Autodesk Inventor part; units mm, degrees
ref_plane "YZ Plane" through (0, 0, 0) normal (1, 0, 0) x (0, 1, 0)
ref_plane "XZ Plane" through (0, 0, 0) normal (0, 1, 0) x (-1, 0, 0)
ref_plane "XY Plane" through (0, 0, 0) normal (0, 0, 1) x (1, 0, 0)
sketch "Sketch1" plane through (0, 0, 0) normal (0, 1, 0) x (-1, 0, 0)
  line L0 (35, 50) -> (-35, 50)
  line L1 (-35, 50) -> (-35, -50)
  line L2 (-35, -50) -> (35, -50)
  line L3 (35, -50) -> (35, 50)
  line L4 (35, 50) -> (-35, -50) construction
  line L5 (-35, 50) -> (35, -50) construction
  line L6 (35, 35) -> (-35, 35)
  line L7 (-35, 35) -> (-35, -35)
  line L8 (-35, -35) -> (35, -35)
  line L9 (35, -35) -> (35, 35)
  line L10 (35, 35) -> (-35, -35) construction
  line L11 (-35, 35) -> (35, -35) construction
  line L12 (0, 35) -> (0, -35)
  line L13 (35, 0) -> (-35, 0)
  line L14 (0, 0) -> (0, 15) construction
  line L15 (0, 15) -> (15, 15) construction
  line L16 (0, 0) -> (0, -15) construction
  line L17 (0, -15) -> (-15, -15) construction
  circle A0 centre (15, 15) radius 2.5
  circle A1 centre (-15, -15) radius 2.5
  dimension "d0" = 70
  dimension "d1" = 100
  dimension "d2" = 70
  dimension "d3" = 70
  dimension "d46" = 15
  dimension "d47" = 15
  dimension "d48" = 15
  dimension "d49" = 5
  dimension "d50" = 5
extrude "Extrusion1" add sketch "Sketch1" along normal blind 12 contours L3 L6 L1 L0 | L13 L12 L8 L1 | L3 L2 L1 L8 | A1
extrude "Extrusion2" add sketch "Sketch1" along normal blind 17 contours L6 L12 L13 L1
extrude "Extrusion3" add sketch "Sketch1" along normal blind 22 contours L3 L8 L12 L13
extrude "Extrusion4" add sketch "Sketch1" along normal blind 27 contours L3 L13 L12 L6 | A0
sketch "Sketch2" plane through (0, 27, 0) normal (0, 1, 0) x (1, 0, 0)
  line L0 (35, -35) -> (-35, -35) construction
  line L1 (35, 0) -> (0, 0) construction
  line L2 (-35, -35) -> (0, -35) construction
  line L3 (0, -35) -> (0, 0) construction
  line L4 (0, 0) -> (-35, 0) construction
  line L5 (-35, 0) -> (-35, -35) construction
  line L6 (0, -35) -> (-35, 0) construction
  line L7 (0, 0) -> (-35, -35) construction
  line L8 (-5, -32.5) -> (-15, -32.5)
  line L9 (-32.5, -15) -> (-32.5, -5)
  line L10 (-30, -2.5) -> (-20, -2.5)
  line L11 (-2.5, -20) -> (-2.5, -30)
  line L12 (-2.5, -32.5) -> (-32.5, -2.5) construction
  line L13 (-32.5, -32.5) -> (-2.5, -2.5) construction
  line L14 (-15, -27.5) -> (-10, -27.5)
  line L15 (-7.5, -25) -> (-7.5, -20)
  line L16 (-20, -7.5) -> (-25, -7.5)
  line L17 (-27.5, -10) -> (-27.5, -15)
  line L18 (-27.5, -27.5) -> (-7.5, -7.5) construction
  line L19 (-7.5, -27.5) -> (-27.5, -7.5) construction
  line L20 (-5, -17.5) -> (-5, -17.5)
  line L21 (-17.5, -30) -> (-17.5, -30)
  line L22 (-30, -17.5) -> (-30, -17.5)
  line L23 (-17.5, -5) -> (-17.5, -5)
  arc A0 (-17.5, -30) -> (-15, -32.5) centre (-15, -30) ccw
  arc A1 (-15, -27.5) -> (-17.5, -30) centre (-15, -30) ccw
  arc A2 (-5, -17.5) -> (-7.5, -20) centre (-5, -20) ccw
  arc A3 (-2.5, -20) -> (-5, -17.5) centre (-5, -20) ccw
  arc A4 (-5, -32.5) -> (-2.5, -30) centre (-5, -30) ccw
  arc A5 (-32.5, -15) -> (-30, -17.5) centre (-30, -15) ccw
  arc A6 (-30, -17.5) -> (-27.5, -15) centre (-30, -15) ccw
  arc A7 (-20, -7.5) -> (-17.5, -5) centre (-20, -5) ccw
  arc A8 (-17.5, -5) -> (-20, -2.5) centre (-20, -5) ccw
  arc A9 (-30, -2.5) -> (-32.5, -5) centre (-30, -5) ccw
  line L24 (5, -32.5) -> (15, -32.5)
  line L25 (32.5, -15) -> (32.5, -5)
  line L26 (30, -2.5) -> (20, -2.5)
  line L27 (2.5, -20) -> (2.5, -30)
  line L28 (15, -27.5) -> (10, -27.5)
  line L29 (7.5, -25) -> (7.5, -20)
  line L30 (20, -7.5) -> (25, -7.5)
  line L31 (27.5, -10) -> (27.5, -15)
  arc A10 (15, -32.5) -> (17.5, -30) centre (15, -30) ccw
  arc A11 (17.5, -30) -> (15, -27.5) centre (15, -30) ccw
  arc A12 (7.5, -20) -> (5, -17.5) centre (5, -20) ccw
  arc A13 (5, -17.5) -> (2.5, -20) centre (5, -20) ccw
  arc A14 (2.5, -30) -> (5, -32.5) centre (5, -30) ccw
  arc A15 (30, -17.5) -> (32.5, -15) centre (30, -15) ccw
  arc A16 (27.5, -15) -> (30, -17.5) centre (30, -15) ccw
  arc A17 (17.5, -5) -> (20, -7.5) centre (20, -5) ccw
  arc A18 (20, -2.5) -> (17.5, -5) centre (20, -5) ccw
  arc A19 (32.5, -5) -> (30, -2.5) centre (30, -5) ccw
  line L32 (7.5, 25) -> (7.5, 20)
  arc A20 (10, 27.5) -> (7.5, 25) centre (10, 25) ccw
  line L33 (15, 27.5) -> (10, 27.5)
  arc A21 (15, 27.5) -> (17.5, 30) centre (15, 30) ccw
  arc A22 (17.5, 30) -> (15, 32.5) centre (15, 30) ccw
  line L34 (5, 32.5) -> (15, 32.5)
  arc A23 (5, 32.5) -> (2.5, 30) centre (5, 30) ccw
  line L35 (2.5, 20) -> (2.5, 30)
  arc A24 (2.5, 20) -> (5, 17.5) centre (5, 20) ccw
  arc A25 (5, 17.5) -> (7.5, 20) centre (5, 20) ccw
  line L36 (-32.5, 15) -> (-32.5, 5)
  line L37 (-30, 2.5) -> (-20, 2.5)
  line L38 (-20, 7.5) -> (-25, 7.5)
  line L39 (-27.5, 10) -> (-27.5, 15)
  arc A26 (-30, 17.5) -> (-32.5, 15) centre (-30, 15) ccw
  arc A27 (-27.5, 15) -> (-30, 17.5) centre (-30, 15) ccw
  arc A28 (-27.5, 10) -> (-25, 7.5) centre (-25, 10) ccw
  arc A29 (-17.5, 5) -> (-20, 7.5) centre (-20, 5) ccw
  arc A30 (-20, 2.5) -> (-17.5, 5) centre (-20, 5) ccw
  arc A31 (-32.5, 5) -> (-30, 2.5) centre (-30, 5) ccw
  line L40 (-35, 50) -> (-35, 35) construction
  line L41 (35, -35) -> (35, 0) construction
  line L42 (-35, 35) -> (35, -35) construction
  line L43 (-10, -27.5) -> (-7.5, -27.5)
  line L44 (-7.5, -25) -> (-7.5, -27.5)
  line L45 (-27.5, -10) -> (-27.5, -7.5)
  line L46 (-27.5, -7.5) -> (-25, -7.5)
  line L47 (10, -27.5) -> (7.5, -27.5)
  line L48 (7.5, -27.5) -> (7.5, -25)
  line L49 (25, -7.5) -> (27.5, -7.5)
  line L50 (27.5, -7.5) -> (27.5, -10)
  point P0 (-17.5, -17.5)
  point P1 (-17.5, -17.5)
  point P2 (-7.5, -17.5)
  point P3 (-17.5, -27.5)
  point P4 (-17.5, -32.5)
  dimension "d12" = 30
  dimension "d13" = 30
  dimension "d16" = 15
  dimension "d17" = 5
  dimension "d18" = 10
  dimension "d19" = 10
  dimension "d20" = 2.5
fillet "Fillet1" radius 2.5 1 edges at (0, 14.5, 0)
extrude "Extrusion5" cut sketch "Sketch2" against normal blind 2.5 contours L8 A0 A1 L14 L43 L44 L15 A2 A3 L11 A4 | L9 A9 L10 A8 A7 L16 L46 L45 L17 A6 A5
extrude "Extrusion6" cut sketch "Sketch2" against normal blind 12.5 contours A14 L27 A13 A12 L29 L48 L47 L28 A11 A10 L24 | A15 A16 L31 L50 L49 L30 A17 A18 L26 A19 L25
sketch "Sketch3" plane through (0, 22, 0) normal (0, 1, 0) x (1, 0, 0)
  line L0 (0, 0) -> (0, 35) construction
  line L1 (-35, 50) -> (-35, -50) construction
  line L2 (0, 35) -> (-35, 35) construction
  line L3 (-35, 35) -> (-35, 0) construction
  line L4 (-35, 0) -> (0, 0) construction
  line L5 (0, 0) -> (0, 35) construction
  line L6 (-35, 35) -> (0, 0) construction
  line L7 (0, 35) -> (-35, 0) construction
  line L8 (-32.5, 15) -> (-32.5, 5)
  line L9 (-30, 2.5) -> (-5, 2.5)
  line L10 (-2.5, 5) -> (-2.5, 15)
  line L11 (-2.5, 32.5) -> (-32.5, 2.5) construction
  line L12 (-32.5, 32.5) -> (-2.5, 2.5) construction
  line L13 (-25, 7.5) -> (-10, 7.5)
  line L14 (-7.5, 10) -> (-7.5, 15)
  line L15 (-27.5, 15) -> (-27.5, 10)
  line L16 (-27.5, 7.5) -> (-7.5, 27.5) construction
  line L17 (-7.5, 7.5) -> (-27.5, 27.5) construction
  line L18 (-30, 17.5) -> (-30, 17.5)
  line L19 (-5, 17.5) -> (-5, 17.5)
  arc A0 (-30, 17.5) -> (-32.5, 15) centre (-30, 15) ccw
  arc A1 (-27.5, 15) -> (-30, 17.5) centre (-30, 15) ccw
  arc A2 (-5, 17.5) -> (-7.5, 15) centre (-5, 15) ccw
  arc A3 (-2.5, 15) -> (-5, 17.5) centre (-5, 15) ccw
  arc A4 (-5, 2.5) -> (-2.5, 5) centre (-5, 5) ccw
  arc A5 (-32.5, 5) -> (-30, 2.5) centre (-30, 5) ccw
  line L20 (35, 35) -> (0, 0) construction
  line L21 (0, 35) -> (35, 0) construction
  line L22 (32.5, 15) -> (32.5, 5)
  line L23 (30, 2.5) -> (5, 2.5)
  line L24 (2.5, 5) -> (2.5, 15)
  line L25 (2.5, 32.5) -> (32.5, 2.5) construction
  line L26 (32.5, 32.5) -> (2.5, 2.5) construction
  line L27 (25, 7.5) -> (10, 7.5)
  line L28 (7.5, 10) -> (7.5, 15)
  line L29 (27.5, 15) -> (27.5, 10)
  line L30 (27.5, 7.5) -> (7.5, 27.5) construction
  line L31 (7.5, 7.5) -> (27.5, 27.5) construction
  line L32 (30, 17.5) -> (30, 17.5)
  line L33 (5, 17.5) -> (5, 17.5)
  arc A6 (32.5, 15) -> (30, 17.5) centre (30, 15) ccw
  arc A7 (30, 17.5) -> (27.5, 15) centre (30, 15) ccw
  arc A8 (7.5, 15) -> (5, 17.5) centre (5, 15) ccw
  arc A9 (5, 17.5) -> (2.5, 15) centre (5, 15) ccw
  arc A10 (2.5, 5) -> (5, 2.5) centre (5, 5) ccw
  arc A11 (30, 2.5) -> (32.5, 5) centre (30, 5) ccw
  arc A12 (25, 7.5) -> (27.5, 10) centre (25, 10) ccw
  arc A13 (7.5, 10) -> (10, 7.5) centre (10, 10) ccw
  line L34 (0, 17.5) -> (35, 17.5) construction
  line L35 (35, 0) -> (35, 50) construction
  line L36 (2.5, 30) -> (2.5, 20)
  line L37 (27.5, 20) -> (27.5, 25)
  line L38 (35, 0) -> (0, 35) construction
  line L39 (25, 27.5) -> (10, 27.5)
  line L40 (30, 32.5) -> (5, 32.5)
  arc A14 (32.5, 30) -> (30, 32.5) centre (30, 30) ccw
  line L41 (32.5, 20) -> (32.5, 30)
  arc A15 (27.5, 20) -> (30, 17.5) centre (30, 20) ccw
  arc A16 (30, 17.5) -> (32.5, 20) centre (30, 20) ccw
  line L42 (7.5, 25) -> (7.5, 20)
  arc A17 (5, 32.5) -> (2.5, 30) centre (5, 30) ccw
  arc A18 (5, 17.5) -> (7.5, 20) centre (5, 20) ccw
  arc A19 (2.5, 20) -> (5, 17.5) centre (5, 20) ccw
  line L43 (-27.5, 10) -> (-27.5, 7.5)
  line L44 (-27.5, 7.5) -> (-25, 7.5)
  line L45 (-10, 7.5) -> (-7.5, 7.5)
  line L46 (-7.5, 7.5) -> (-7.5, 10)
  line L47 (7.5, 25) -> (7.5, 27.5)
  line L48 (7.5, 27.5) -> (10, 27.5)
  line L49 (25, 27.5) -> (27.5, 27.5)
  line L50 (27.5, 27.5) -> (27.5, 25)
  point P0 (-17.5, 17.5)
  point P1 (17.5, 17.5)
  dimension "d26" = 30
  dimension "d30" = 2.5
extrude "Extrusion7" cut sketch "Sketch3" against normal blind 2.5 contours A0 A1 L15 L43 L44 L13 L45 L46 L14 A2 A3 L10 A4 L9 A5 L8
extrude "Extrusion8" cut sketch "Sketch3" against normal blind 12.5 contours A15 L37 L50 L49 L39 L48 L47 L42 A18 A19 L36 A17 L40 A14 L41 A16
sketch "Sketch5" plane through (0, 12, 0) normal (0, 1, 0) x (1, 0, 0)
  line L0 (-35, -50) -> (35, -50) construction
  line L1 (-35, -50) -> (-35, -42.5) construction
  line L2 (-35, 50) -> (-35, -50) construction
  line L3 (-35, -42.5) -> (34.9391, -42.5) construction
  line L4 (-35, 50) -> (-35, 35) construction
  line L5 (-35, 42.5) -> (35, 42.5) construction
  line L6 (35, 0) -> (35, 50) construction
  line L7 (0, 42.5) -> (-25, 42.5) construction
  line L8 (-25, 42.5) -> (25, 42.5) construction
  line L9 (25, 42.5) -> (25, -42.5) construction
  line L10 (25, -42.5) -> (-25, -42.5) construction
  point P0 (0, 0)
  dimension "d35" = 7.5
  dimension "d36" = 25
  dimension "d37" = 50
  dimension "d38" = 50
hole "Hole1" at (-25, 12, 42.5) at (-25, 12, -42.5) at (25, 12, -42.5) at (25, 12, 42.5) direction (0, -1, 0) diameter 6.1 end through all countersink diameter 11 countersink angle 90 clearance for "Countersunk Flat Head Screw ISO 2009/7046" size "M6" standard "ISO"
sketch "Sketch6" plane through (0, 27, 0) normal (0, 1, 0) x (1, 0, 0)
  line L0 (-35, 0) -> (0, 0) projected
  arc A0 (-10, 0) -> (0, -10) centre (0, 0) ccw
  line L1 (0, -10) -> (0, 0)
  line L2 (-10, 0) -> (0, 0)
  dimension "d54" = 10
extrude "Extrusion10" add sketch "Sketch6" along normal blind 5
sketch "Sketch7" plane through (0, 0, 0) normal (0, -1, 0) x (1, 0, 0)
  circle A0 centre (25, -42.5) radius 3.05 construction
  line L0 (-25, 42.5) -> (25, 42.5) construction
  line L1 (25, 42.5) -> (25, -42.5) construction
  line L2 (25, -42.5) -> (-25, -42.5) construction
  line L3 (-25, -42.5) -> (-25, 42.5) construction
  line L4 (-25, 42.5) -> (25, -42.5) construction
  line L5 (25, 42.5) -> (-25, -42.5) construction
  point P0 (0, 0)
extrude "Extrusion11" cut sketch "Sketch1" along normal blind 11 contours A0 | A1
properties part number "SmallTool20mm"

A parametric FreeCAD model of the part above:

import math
import FreeCAD as App
import Part
import Sketcher


def edges_at(feature, points):
    """Names of the edges that pass closest to the given points."""
    edges = feature.Shape.Edges
    near = lambda p: min(range(len(edges)), key=lambda i: edges[i].distToShape(Part.Vertex(*p))[0])
    return sorted({f"Edge{near(p) + 1}" for p in points})

doc = App.newDocument("Part")
params = doc.addObject("Spreadsheet::Sheet", "Params")
for row, (alias, value) in enumerate([
    ("sketch1_width", "70 mm"),
    ("sketch1_height", "15 mm"),
    ("pad1_length", "12 mm"),
    ("sketch2_width", "35 mm"),
    ("pad2_length", "17 mm"),
    ("sketch3_width", "35 mm"),
    ("pad3_length", "22 mm"),
    ("sketch4_width", "35 mm"),
    ("pad4_length", "27 mm"),
    ("fillet_radius", "2.5 mm"),
    ("sketch5_radius", "2.5 mm"),
    ("sketch5_width", "10 mm"),
    ("pocket1_length", "2.5 mm"),
    ("sketch6_radius", "2.5 mm"),
    ("sketch6_width", "10 mm"),
    ("pocket2_length", "12.5 mm"),
    ("sketch7_radius", "2.5 mm"),
    ("sketch7_height", "10 mm"),
    ("pocket3_length", "2.5 mm"),
    ("sketch8_radius", "2.5 mm"),
    ("sketch8_height", "10 mm"),
    ("pocket4_length", "12.5 mm"),
    ("sketch9_diameter", "6.1 mm"),
    ("hole_diameter", "6.1 mm"),
    ("hole_csink_diameter", "11 mm"),
    ("sketch10_radius", "10 mm"),
    ("pad5_length", "5 mm"),
    ("sketch11_diameter", "5 mm"),
    ("pocket5_length", "11 mm"),
], start=1):
    params.set(f"A{row}", alias)
    params.set(f"B{row}", "=" + value)
    params.setAlias(f"B{row}", alias)

body = doc.addObject("PartDesign::Body", "Body")
body.AllowCompound = True

sketch1 = doc.addObject("Sketcher::SketchObject", "Sketch")
body.addObject(sketch1)
sketch1.AttachmentSupport = (doc.XZ_Plane, [""])
sketch1.MapMode = "FlatFace"
sketch1.addGeometry([
    Part.LineSegment(App.Vector(-35, 35, 0), App.Vector(-35, 50, 0)),
    Part.LineSegment(App.Vector(-35, 50, 0), App.Vector(35, 50, 0)),
    Part.LineSegment(App.Vector(35, 50, 0), App.Vector(35, 35, 0)),
    Part.LineSegment(App.Vector(35, 35, 0), App.Vector(-35, 35, 0)),
    Part.LineSegment(App.Vector(0, 0, 0), App.Vector(35, 0, 0)),
    Part.LineSegment(App.Vector(35, 0, 0), App.Vector(35, -50, 0)),
    Part.LineSegment(App.Vector(35, -50, 0), App.Vector(-35, -50, 0)),
    Part.LineSegment(App.Vector(-35, -50, 0), App.Vector(-35, -35, 0)),
    Part.LineSegment(App.Vector(-35, -35, 0), App.Vector(0, -35, 0)),
    Part.LineSegment(App.Vector(0, -35, 0), App.Vector(0, 0, 0)),
], False)
sketch1.addConstraint([
    Sketcher.Constraint("Coincident", 0, 2, 1, 1),
    Sketcher.Constraint("Coincident", 1, 2, 2, 1),
    Sketcher.Constraint("Coincident", 2, 2, 3, 1),
    Sketcher.Constraint("Coincident", 3, 2, 0, 1),
    Sketcher.Constraint("Coincident", 4, 2, 5, 1),
    Sketcher.Constraint("Coincident", 5, 2, 6, 1),
    Sketcher.Constraint("Coincident", 6, 2, 7, 1),
    Sketcher.Constraint("Coincident", 7, 2, 8, 1),
    Sketcher.Constraint("Coincident", 8, 2, 9, 1),
    Sketcher.Constraint("Coincident", 9, 2, 4, 1),
    Sketcher.Constraint("Vertical", 0),
    Sketcher.Constraint("Horizontal", 1),
    Sketcher.Constraint("Vertical", 2),
    Sketcher.Constraint("Horizontal", 3),
    Sketcher.Constraint("Horizontal", 4),
    Sketcher.Constraint("Vertical", 5),
    Sketcher.Constraint("Horizontal", 6),
    Sketcher.Constraint("Vertical", 7),
    Sketcher.Constraint("Horizontal", 8),
    Sketcher.Constraint("Vertical", 9),
    Sketcher.Constraint("Coincident", 9, 2, -1, 1),
    Sketcher.Constraint("Symmetric", 0, 2, 5, 2, -1, 1),
    Sketcher.Constraint("Symmetric", 2, 2, 7, 2, -1, 1),
    Sketcher.Constraint("Vertical", 2, 2, 4, 2),
    Sketcher.Constraint("Equal", 8, 9),
    Sketcher.Constraint("DistanceX", 1, 1, 1, 2, 70.0),
    Sketcher.Constraint("DistanceY", 0, 1, 0, 2, 15.0),
])
sketch1.setExpression("Constraints[25]", "Params.sketch1_width")
sketch1.setExpression("Constraints[26]", "Params.sketch1_height")
pad1 = doc.addObject("PartDesign::Pad", "Pad")
body.addObject(pad1)
pad1.Profile = sketch1
pad1.setExpression("Length", "Params.pad1_length")
pad1.Reversed = True

sketch2 = doc.addObject("Sketcher::SketchObject", "Sketch001")
body.addObject(sketch2)
sketch2.AttachmentSupport = (doc.XZ_Plane, [""])
sketch2.MapMode = "FlatFace"
sketch2.addGeometry([
    Part.LineSegment(App.Vector(0, 35, 0), App.Vector(35, 35, 0)),
    Part.LineSegment(App.Vector(35, 35, 0), App.Vector(35, 0, 0)),
    Part.LineSegment(App.Vector(35, 0, 0), App.Vector(0, 0, 0)),
    Part.LineSegment(App.Vector(0, 0, 0), App.Vector(0, 35, 0)),
], False)
sketch2.addConstraint([
    Sketcher.Constraint("Coincident", 0, 2, 1, 1),
    Sketcher.Constraint("Coincident", 1, 2, 2, 1),
    Sketcher.Constraint("Coincident", 2, 2, 3, 1),
    Sketcher.Constraint("Coincident", 3, 2, 0, 1),
    Sketcher.Constraint("Horizontal", 0),
    Sketcher.Constraint("Vertical", 1),
    Sketcher.Constraint("Horizontal", 2),
    Sketcher.Constraint("Vertical", 3),
    Sketcher.Constraint("Coincident", 2, 2, -1, 1),
    Sketcher.Constraint("Equal", 2, 1),
    Sketcher.Constraint("DistanceX", 0, 1, 0, 2, 35.0),
])
sketch2.setExpression("Constraints[10]", "Params.sketch2_width")
pad2 = doc.addObject("PartDesign::Pad", "Pad001")
body.addObject(pad2)
pad2.Profile = sketch2
pad2.setExpression("Length", "Params.pad2_length")
pad2.Reversed = True

sketch3 = doc.addObject("Sketcher::SketchObject", "Sketch002")
body.addObject(sketch3)
sketch3.AttachmentSupport = (doc.XZ_Plane, [""])
sketch3.MapMode = "FlatFace"
sketch3.addGeometry([
    Part.LineSegment(App.Vector(-35, -35, 0), App.Vector(-35, 0, 0)),
    Part.LineSegment(App.Vector(-35, 0, 0), App.Vector(0, 0, 0)),
    Part.LineSegment(App.Vector(0, 0, 0), App.Vector(0, -35, 0)),
    Part.LineSegment(App.Vector(0, -35, 0), App.Vector(-35, -35, 0)),
], False)
sketch3.addConstraint([
    Sketcher.Constraint("Coincident", 0, 2, 1, 1),
    Sketcher.Constraint("Coincident", 1, 2, 2, 1),
    Sketcher.Constraint("Coincident", 2, 2, 3, 1),
    Sketcher.Constraint("Coincident", 3, 2, 0, 1),
    Sketcher.Constraint("Vertical", 0),
    Sketcher.Constraint("Horizontal", 1),
    Sketcher.Constraint("Vertical", 2),
    Sketcher.Constraint("Horizontal", 3),
    Sketcher.Constraint("Coincident", 1, 2, -1, 1),
    Sketcher.Constraint("Equal", 3, 0),
    Sketcher.Constraint("DistanceX", 1, 1, 1, 2, 35.0),
])
sketch3.setExpression("Constraints[10]", "Params.sketch3_width")
pad3 = doc.addObject("PartDesign::Pad", "Pad002")
body.addObject(pad3)
pad3.Profile = sketch3
pad3.setExpression("Length", "Params.pad3_length")
pad3.Reversed = True

sketch4 = doc.addObject("Sketcher::SketchObject", "Sketch003")
body.addObject(sketch4)
sketch4.AttachmentSupport = (doc.XZ_Plane, [""])
sketch4.MapMode = "FlatFace"
sketch4.addGeometry([
    Part.LineSegment(App.Vector(-35, 0, 0), App.Vector(-35, 35, 0)),
    Part.LineSegment(App.Vector(-35, 35, 0), App.Vector(0, 35, 0)),
    Part.LineSegment(App.Vector(0, 35, 0), App.Vector(0, 0, 0)),
    Part.LineSegment(App.Vector(0, 0, 0), App.Vector(-35, 0, 0)),
], False)
sketch4.addConstraint([
    Sketcher.Constraint("Coincident", 0, 2, 1, 1),
    Sketcher.Constraint("Coincident", 1, 2, 2, 1),
    Sketcher.Constraint("Coincident", 2, 2, 3, 1),
    Sketcher.Constraint("Coincident", 3, 2, 0, 1),
    Sketcher.Constraint("Vertical", 0),
    Sketcher.Constraint("Horizontal", 1),
    Sketcher.Constraint("Vertical", 2),
    Sketcher.Constraint("Horizontal", 3),
    Sketcher.Constraint("Coincident", 2, 2, -1, 1),
    Sketcher.Constraint("Equal", 3, 0),
    Sketcher.Constraint("DistanceX", 1, 1, 1, 2, 35.0),
])
sketch4.setExpression("Constraints[10]", "Params.sketch4_width")
pad4 = doc.addObject("PartDesign::Pad", "Pad003")
body.addObject(pad4)
pad4.Profile = sketch4
pad4.setExpression("Length", "Params.pad4_length")
pad4.Reversed = True
doc.recompute()

fillet = doc.addObject("PartDesign::Fillet", "Fillet")
body.addObject(fillet)
fillet.Base = (pad4, edges_at(pad4, [(0, 14.5, 0)]))
fillet.setExpression("Radius", "Params.fillet_radius")

sketch5 = doc.addObject("Sketcher::SketchObject", "Sketch004")
body.addObject(sketch5)
sketch5.AttachmentSupport = (doc.XZ_Plane, [""])
sketch5.MapMode = "FlatFace"
sketch5.AttachmentOffset = App.Placement(App.Vector(0, 0, -27), App.Rotation())
sketch5.addGeometry([
    Part.LineSegment(App.Vector(-15, 32.5, 0), App.Vector(-5, 32.5, 0)),
    Part.ArcOfCircle(Part.Circle(App.Vector(-5, 30, 0), App.Vector(0, 0, 1), 2.5), math.radians(0), math.radians(90)),
    Part.LineSegment(App.Vector(-2.5, 30, 0), App.Vector(-2.5, 20, 0)),
    Part.ArcOfCircle(Part.Circle(App.Vector(-5, 20, 0), App.Vector(0, 0, 1), 2.5), math.radians(180), math.radians(360)),
    Part.LineSegment(App.Vector(-7.5, 20, 0), App.Vector(-7.5, 27.5, 0)),
    Part.LineSegment(App.Vector(-7.5, 27.5, 0), App.Vector(-15, 27.5, 0)),
    Part.ArcOfCircle(Part.Circle(App.Vector(-15, 30, 0), App.Vector(0, 0, 1), 2.5), math.radians(90), math.radians(270)),
    Part.LineSegment(App.Vector(-32.5, 5, 0), App.Vector(-32.5, 15, 0)),
    Part.ArcOfCircle(Part.Circle(App.Vector(-30, 15, 0), App.Vector(0, 0, 1), 2.5), math.radians(0), math.radians(180)),
    Part.LineSegment(App.Vector(-27.5, 15, 0), App.Vector(-27.5, 7.5, 0)),
    Part.LineSegment(App.Vector(-27.5, 7.5, 0), App.Vector(-20, 7.5, 0)),
    Part.ArcOfCircle(Part.Circle(App.Vector(-20, 5, 0), App.Vector(0, 0, 1), 2.5), math.radians(-90), math.radians(90)),
    Part.LineSegment(App.Vector(-20, 2.5, 0), App.Vector(-30, 2.5, 0)),
    Part.ArcOfCircle(Part.Circle(App.Vector(-30, 5, 0), App.Vector(0, 0, 1), 2.5), math.radians(180), math.radians(270)),
], False)
sketch5.addConstraint([
    Sketcher.Constraint("Tangent", 0, 2, 1, 2),
    Sketcher.Constraint("Tangent", 1, 1, 2, 1),
    Sketcher.Constraint("Tangent", 2, 2, 3, 2),
    Sketcher.Constraint("Tangent", 3, 1, 4, 1),
    Sketcher.Constraint("Coincident", 4, 2, 5, 1),
    Sketcher.Constraint("Tangent", 5, 2, 6, 2),
    Sketcher.Constraint("Tangent", 6, 1, 0, 1),
    Sketcher.Constraint("Tangent", 7, 2, 8, 2),
    Sketcher.Constraint("Tangent", 8, 1, 9, 1),
    Sketcher.Constraint("Coincident", 9, 2, 10, 1),
    Sketcher.Constraint("Tangent", 10, 2, 11, 2),
    Sketcher.Constraint("Tangent", 11, 1, 12, 1),
    Sketcher.Constraint("Tangent", 12, 2, 13, 2),
    Sketcher.Constraint("Tangent", 13, 1, 7, 1),
    Sketcher.Constraint("Horizontal", 0),
    Sketcher.Constraint("Vertical", 2),
    Sketcher.Constraint("Vertical", 4),
    Sketcher.Constraint("Horizontal", 5),
    Sketcher.Constraint("Vertical", 7),
    Sketcher.Constraint("Vertical", 9),
    Sketcher.Constraint("Horizontal", 10),
    Sketcher.Constraint("Horizontal", 12),
    Sketcher.Constraint("Equal", 1, 3),
    Sketcher.Constraint("Equal", 3, 6),
    Sketcher.Constraint("Equal", 6, 8),
    Sketcher.Constraint("Equal", 8, 11),
    Sketcher.Constraint("Equal", 11, 13),
    Sketcher.Constraint("Equal", 5, 10),
    Sketcher.Constraint("Equal", 12, 2),
    Sketcher.Constraint("Equal", 2, 7),
    Sketcher.Constraint("Radius", 1, 2.5),
    Sketcher.Constraint("DistanceX", 0, 1, 0, 2, 10.0),
    Sketcher.Constraint("DistanceX", 1, 3, -1, 1, 5.0),
    Sketcher.Constraint("DistanceY", -1, 1, 1, 3, 30.0),
    Sketcher.Constraint("DistanceX", 8, 3, -1, 1, 30.0),
    Sketcher.Constraint("DistanceY", -1, 1, 8, 3, 15.0),
])
sketch5.setExpression("Constraints[30]", "Params.sketch5_radius")
sketch5.setExpression("Constraints[31]", "Params.sketch5_width")
pocket1 = doc.addObject("PartDesign::Pocket", "Pocket")
body.addObject(pocket1)
pocket1.Profile = sketch5
pocket1.setExpression("Length", "Params.pocket1_length")
pocket1.Reversed = True

sketch6 = doc.addObject("Sketcher::SketchObject", "Sketch005")
body.addObject(sketch6)
sketch6.AttachmentSupport = (doc.XZ_Plane, [""])
sketch6.MapMode = "FlatFace"
sketch6.AttachmentOffset = App.Placement(App.Vector(0, 0, -27), App.Rotation())
sketch6.addGeometry([
    Part.ArcOfCircle(Part.Circle(App.Vector(5, 30, 0), App.Vector(0, 0, 1), 2.5), math.radians(90), math.radians(180)),
    Part.LineSegment(App.Vector(5, 32.5, 0), App.Vector(15, 32.5, 0)),
    Part.ArcOfCircle(Part.Circle(App.Vector(15, 30, 0), App.Vector(0, 0, 1), 2.5), math.radians(-90), math.radians(90)),
    Part.LineSegment(App.Vector(15, 27.5, 0), App.Vector(7.5, 27.5, 0)),
    Part.LineSegment(App.Vector(7.5, 27.5, 0), App.Vector(7.5, 20, 0)),
    Part.ArcOfCircle(Part.Circle(App.Vector(5, 20, 0), App.Vector(0, 0, 1), 2.5), math.radians(180), math.radians(360)),
    Part.LineSegment(App.Vector(2.5, 20, 0), App.Vector(2.5, 30, 0)),
    Part.ArcOfCircle(Part.Circle(App.Vector(30, 15, 0), App.Vector(0, 0, 1), 2.5), math.radians(0), math.radians(180)),
    Part.LineSegment(App.Vector(32.5, 15, 0), App.Vector(32.5, 5, 0)),
    Part.ArcOfCircle(Part.Circle(App.Vector(30, 5, 0), App.Vector(0, 0, 1), 2.5), math.radians(-90), math.radians(0)),
    Part.LineSegment(App.Vector(30, 2.5, 0), App.Vector(20, 2.5, 0)),
    Part.ArcOfCircle(Part.Circle(App.Vector(20, 5, 0), App.Vector(0, 0, 1), 2.5), math.radians(90), math.radians(270)),
    Part.LineSegment(App.Vector(20, 7.5, 0), App.Vector(27.5, 7.5, 0)),
    Part.LineSegment(App.Vector(27.5, 7.5, 0), App.Vector(27.5, 15, 0)),
], False)
sketch6.addConstraint([
    Sketcher.Constraint("Tangent", 0, 1, 1, 1),
    Sketcher.Constraint("Tangent", 1, 2, 2, 2),
    Sketcher.Constraint("Tangent", 2, 1, 3, 1),
    Sketcher.Constraint("Coincident", 3, 2, 4, 1),
    Sketcher.Constraint("Tangent", 4, 2, 5, 2),
    Sketcher.Constraint("Tangent", 5, 1, 6, 1),
    Sketcher.Constraint("Tangent", 6, 2, 0, 2),
    Sketcher.Constraint("Tangent", 7, 1, 8, 1),
    Sketcher.Constraint("Tangent", 8, 2, 9, 2),
    Sketcher.Constraint("Tangent", 9, 1, 10, 1),
    Sketcher.Constraint("Tangent", 10, 2, 11, 2),
    Sketcher.Constraint("Tangent", 11, 1, 12, 1),
    Sketcher.Constraint("Coincident", 12, 2, 13, 1),
    Sketcher.Constraint("Tangent", 13, 2, 7, 2),
    Sketcher.Constraint("Horizontal", 1),
    Sketcher.Constraint("Horizontal", 3),
    Sketcher.Constraint("Vertical", 4),
    Sketcher.Constraint("Vertical", 6),
    Sketcher.Constraint("Vertical", 8),
    Sketcher.Constraint("Horizontal", 10),
    Sketcher.Constraint("Horizontal", 12),
    Sketcher.Constraint("Vertical", 13),
    Sketcher.Constraint("Equal", 0, 2),
    Sketcher.Constraint("Equal", 2, 5),
    Sketcher.Constraint("Equal", 5, 7),
    Sketcher.Constraint("Equal", 7, 9),
    Sketcher.Constraint("Equal", 9, 11),
    Sketcher.Constraint("Equal", 1, 10),
    Sketcher.Constraint("Equal", 12, 4),
    Sketcher.Constraint("Equal", 6, 8),
    Sketcher.Constraint("Radius", 0, 2.5),
    Sketcher.Constraint("DistanceX", 1, 1, 1, 2, 10.0),
    Sketcher.Constraint("DistanceX", -1, 1, 0, 3, 5.0),
    Sketcher.Constraint("DistanceY", -1, 1, 0, 3, 30.0),
    Sketcher.Constraint("DistanceX", -1, 1, 7, 3, 30.0),
    Sketcher.Constraint("DistanceY", -1, 1, 7, 3, 15.0),
])
sketch6.setExpression("Constraints[30]", "Params.sketch6_radius")
sketch6.setExpression("Constraints[31]", "Params.sketch6_width")
pocket2 = doc.addObject("PartDesign::Pocket", "Pocket001")
body.addObject(pocket2)
pocket2.Profile = sketch6
pocket2.setExpression("Length", "Params.pocket2_length")
pocket2.Reversed = True

sketch7 = doc.addObject("Sketcher::SketchObject", "Sketch006")
body.addObject(sketch7)
sketch7.AttachmentSupport = (doc.XZ_Plane, [""])
sketch7.MapMode = "FlatFace"
sketch7.AttachmentOffset = App.Placement(App.Vector(0, 0, -22), App.Rotation())
sketch7.addGeometry([
    Part.ArcOfCircle(Part.Circle(App.Vector(-30, -15, 0), App.Vector(0, 0, 1), 2.5), math.radians(180), math.radians(360)),
    Part.LineSegment(App.Vector(-32.5, -15, 0), App.Vector(-32.5, -5, 0)),
    Part.ArcOfCircle(Part.Circle(App.Vector(-30, -5, 0), App.Vector(0, 0, 1), 2.5), math.radians(90), math.radians(180)),
    Part.LineSegment(App.Vector(-30, -2.5, 0), App.Vector(-5, -2.5, 0)),
    Part.ArcOfCircle(Part.Circle(App.Vector(-5, -5, 0), App.Vector(0, 0, 1), 2.5), math.radians(0), math.radians(90)),
    Part.LineSegment(App.Vector(-2.5, -5, 0), App.Vector(-2.5, -15, 0)),
    Part.ArcOfCircle(Part.Circle(App.Vector(-5, -15, 0), App.Vector(0, 0, 1), 2.5), math.radians(180), math.radians(360)),
    Part.LineSegment(App.Vector(-7.5, -15, 0), App.Vector(-7.5, -7.5, 0)),
    Part.LineSegment(App.Vector(-7.5, -7.5, 0), App.Vector(-27.5, -7.5, 0)),
    Part.LineSegment(App.Vector(-27.5, -7.5, 0), App.Vector(-27.5, -15, 0)),
], False)
sketch7.addConstraint([
    Sketcher.Constraint("Tangent", 0, 1, 1, 1),
    Sketcher.Constraint("Tangent", 1, 2, 2, 2),
    Sketcher.Constraint("Tangent", 2, 1, 3, 1),
    Sketcher.Constraint("Tangent", 3, 2, 4, 2),
    Sketcher.Constraint("Tangent", 4, 1, 5, 1),
    Sketcher.Constraint("Tangent", 5, 2, 6, 2),
    Sketcher.Constraint("Tangent", 6, 1, 7, 1),
    Sketcher.Constraint("Coincident", 7, 2, 8, 1),
    Sketcher.Constraint("Coincident", 8, 2, 9, 1),
    Sketcher.Constraint("Tangent", 9, 2, 0, 2),
    Sketcher.Constraint("Vertical", 1),
    Sketcher.Constraint("Horizontal", 3),
    Sketcher.Constraint("Vertical", 5),
    Sketcher.Constraint("Vertical", 7),
    Sketcher.Constraint("Horizontal", 8),
    Sketcher.Constraint("Vertical", 9),
    Sketcher.Constraint("Equal", 0, 2),
    Sketcher.Constraint("Equal", 2, 4),
    Sketcher.Constraint("Equal", 4, 6),
    Sketcher.Constraint("Horizontal", 0, 3, 6, 3),
    Sketcher.Constraint("Radius", 0, 2.5),
    Sketcher.Constraint("DistanceX", 0, 3, -1, 1, 30.0),
    Sketcher.Constraint("DistanceY", 2, 1, -1, 1, 2.5),
    Sketcher.Constraint("DistanceX", 4, 1, -1, 1, 2.5),
    Sketcher.Constraint("DistanceY", 7, 2, 4, 3, 2.5),
    Sketcher.Constraint("DistanceY", 1, 1, 1, 2, 10.0),
])
sketch7.setExpression("Constraints[20]", "Params.sketch7_radius")
sketch7.setExpression("Constraints[25]", "Params.sketch7_height")
pocket3 = doc.addObject("PartDesign::Pocket", "Pocket002")
body.addObject(pocket3)
pocket3.Profile = sketch7
pocket3.setExpression("Length", "Params.pocket3_length")
pocket3.Reversed = True

sketch8 = doc.addObject("Sketcher::SketchObject", "Sketch007")
body.addObject(sketch8)
sketch8.AttachmentSupport = (doc.XZ_Plane, [""])
sketch8.MapMode = "FlatFace"
sketch8.AttachmentOffset = App.Placement(App.Vector(0, 0, -22), App.Rotation())
sketch8.addGeometry([
    Part.ArcOfCircle(Part.Circle(App.Vector(30, -20, 0), App.Vector(0, 0, 1), 2.5), math.radians(0), math.radians(180)),
    Part.LineSegment(App.Vector(32.5, -20, 0), App.Vector(32.5, -30, 0)),
    Part.ArcOfCircle(Part.Circle(App.Vector(30, -30, 0), App.Vector(0, 0, 1), 2.5), math.radians(-90), math.radians(0)),
    Part.LineSegment(App.Vector(30, -32.5, 0), App.Vector(5, -32.5, 0)),
    Part.ArcOfCircle(Part.Circle(App.Vector(5, -30, 0), App.Vector(0, 0, 1), 2.5), math.radians(180), math.radians(270)),
    Part.LineSegment(App.Vector(2.5, -30, 0), App.Vector(2.5, -20, 0)),
    Part.ArcOfCircle(Part.Circle(App.Vector(5, -20, 0), App.Vector(0, 0, 1), 2.5), math.radians(0), math.radians(180)),
    Part.LineSegment(App.Vector(7.5, -20, 0), App.Vector(7.5, -27.5, 0)),
    Part.LineSegment(App.Vector(7.5, -27.5, 0), App.Vector(27.5, -27.5, 0)),
    Part.LineSegment(App.Vector(27.5, -27.5, 0), App.Vector(27.5, -20, 0)),
], False)
sketch8.addConstraint([
    Sketcher.Constraint("Tangent", 0, 1, 1, 1),
    Sketcher.Constraint("Tangent", 1, 2, 2, 2),
    Sketcher.Constraint("Tangent", 2, 1, 3, 1),
    Sketcher.Constraint("Tangent", 3, 2, 4, 2),
    Sketcher.Constraint("Tangent", 4, 1, 5, 1),
    Sketcher.Constraint("Tangent", 5, 2, 6, 2),
    Sketcher.Constraint("Tangent", 6, 1, 7, 1),
    Sketcher.Constraint("Coincident", 7, 2, 8, 1),
    Sketcher.Constraint("Coincident", 8, 2, 9, 1),
    Sketcher.Constraint("Tangent", 9, 2, 0, 2),
    Sketcher.Constraint("Vertical", 1),
    Sketcher.Constraint("Horizontal", 3),
    Sketcher.Constraint("Vertical", 5),
    Sketcher.Constraint("Vertical", 7),
    Sketcher.Constraint("Horizontal", 8),
    Sketcher.Constraint("Vertical", 9),
    Sketcher.Constraint("Equal", 0, 2),
    Sketcher.Constraint("Equal", 2, 4),
    Sketcher.Constraint("Equal", 4, 6),
    Sketcher.Constraint("Horizontal", 0, 3, 6, 3),
    Sketcher.Constraint("Radius", 0, 2.5),
    Sketcher.Constraint("DistanceX", -1, 1, 0, 3, 30.0),
    Sketcher.Constraint("DistanceY", 2, 3, -1, 1, 30.0),
    Sketcher.Constraint("DistanceX", -1, 1, 4, 1, 2.5),
    Sketcher.Constraint("DistanceY", 4, 3, 7, 2, 2.5),
    Sketcher.Constraint("DistanceY", 1, 2, 1, 1, 10.0),
])
sketch8.setExpression("Constraints[20]", "Params.sketch8_radius")
sketch8.setExpression("Constraints[25]", "Params.sketch8_height")
pocket4 = doc.addObject("PartDesign::Pocket", "Pocket003")
body.addObject(pocket4)
pocket4.Profile = sketch8
pocket4.setExpression("Length", "Params.pocket4_length")
pocket4.Reversed = True

sketch9 = doc.addObject("Sketcher::SketchObject", "Sketch008")
body.addObject(sketch9)
sketch9.AttachmentSupport = (doc.XZ_Plane, [""])
sketch9.MapMode = "FlatFace"
sketch9.AttachmentOffset = App.Placement(App.Vector(0, 0, -12), App.Rotation())
sketch9.addGeometry([
    Part.Circle(App.Vector(-25, 42.5, 0), App.Vector(0, 0, 1), 3),
    Part.Circle(App.Vector(-25, -42.5, 0), App.Vector(0, 0, 1), 3),
    Part.Circle(App.Vector(25, -42.5, 0), App.Vector(0, 0, 1), 3),
    Part.Circle(App.Vector(25, 42.5, 0), App.Vector(0, 0, 1), 3),
], False)
sketch9.addConstraint([
    Sketcher.Constraint("Equal", 0, 1),
    Sketcher.Constraint("Equal", 1, 2),
    Sketcher.Constraint("Equal", 2, 3),
    Sketcher.Constraint("Symmetric", 0, 3, 2, 3, -1, 1),
    Sketcher.Constraint("Symmetric", 1, 3, 3, 3, -1, 1),
    Sketcher.Constraint("Symmetric", 1, 3, 2, 3, -2),
    Sketcher.Constraint("Diameter", 0, 6.1),
    Sketcher.Constraint("DistanceX", 0, 3, -1, 1, 25.0),
    Sketcher.Constraint("DistanceY", 1, 3, 0, 3, 85.0),
])
sketch9.setExpression("Constraints[6]", "Params.sketch9_diameter")
doc.recompute()
hole = doc.addObject("PartDesign::Hole", "Hole")
body.addObject(hole)
hole.Profile = sketch9
hole.ThreadType = "None"
hole.setExpression("Diameter", "Params.hole_diameter")
hole.DepthType = "ThroughAll"
hole.HoleCutType = "Countersink"
hole.setExpression("HoleCutDiameter", "Params.hole_csink_diameter")
hole.HoleCutCountersinkAngle = 90
hole.Reversed = True

sketch10 = doc.addObject("Sketcher::SketchObject", "Sketch009")
body.addObject(sketch10)
sketch10.AttachmentSupport = (doc.XZ_Plane, [""])
sketch10.MapMode = "FlatFace"
sketch10.AttachmentOffset = App.Placement(App.Vector(0, 0, -27), App.Rotation())
sketch10.addGeometry([
    Part.LineSegment(App.Vector(0, 0, 0), App.Vector(-10, 0, 0)),
    Part.ArcOfCircle(Part.Circle(App.Vector(0, 0, 0), App.Vector(0, 0, 1), 10), math.radians(90), math.radians(180)),
    Part.LineSegment(App.Vector(0, 10, 0), App.Vector(0, 0, 0)),
], False)
sketch10.addConstraint([
    Sketcher.Constraint("Coincident", 0, 2, 1, 2),
    Sketcher.Constraint("Coincident", 1, 1, 2, 1),
    Sketcher.Constraint("Coincident", 2, 2, 0, 1),
    Sketcher.Constraint("Horizontal", 0),
    Sketcher.Constraint("Vertical", 2),
    Sketcher.Constraint("Coincident", 1, 3, -1, 1),
    Sketcher.Constraint("Coincident", 2, 2, -1, 1),
    Sketcher.Constraint("Radius", 1, 10.0),
])
sketch10.setExpression("Constraints[7]", "Params.sketch10_radius")
pad5 = doc.addObject("PartDesign::Pad", "Pad004")
body.addObject(pad5)
pad5.Profile = sketch10
pad5.setExpression("Length", "Params.pad5_length")
pad5.Reversed = True

sketch11 = doc.addObject("Sketcher::SketchObject", "Sketch010")
body.addObject(sketch11)
sketch11.AttachmentSupport = (doc.XZ_Plane, [""])
sketch11.MapMode = "FlatFace"
sketch11.addGeometry([
    Part.Circle(App.Vector(-15, 15, 0), App.Vector(0, 0, 1), 2.5),
    Part.Circle(App.Vector(15, -15, 0), App.Vector(0, 0, 1), 2.5),
], False)
sketch11.addConstraint([
    Sketcher.Constraint("Equal", 0, 1),
    Sketcher.Constraint("Symmetric", 0, 3, 1, 3, -1, 1),
    Sketcher.Constraint("Diameter", 0, 5.0),
    Sketcher.Constraint("DistanceX", 0, 3, -1, 1, 15.0),
    Sketcher.Constraint("DistanceY", -1, 1, 0, 3, 15.0),
])
sketch11.setExpression("Constraints[2]", "Params.sketch11_diameter")
pocket5 = doc.addObject("PartDesign::Pocket", "Pocket004")
body.addObject(pocket5)
pocket5.Profile = sketch11
pocket5.setExpression("Length", "Params.pocket5_length")

doc.recompute()
